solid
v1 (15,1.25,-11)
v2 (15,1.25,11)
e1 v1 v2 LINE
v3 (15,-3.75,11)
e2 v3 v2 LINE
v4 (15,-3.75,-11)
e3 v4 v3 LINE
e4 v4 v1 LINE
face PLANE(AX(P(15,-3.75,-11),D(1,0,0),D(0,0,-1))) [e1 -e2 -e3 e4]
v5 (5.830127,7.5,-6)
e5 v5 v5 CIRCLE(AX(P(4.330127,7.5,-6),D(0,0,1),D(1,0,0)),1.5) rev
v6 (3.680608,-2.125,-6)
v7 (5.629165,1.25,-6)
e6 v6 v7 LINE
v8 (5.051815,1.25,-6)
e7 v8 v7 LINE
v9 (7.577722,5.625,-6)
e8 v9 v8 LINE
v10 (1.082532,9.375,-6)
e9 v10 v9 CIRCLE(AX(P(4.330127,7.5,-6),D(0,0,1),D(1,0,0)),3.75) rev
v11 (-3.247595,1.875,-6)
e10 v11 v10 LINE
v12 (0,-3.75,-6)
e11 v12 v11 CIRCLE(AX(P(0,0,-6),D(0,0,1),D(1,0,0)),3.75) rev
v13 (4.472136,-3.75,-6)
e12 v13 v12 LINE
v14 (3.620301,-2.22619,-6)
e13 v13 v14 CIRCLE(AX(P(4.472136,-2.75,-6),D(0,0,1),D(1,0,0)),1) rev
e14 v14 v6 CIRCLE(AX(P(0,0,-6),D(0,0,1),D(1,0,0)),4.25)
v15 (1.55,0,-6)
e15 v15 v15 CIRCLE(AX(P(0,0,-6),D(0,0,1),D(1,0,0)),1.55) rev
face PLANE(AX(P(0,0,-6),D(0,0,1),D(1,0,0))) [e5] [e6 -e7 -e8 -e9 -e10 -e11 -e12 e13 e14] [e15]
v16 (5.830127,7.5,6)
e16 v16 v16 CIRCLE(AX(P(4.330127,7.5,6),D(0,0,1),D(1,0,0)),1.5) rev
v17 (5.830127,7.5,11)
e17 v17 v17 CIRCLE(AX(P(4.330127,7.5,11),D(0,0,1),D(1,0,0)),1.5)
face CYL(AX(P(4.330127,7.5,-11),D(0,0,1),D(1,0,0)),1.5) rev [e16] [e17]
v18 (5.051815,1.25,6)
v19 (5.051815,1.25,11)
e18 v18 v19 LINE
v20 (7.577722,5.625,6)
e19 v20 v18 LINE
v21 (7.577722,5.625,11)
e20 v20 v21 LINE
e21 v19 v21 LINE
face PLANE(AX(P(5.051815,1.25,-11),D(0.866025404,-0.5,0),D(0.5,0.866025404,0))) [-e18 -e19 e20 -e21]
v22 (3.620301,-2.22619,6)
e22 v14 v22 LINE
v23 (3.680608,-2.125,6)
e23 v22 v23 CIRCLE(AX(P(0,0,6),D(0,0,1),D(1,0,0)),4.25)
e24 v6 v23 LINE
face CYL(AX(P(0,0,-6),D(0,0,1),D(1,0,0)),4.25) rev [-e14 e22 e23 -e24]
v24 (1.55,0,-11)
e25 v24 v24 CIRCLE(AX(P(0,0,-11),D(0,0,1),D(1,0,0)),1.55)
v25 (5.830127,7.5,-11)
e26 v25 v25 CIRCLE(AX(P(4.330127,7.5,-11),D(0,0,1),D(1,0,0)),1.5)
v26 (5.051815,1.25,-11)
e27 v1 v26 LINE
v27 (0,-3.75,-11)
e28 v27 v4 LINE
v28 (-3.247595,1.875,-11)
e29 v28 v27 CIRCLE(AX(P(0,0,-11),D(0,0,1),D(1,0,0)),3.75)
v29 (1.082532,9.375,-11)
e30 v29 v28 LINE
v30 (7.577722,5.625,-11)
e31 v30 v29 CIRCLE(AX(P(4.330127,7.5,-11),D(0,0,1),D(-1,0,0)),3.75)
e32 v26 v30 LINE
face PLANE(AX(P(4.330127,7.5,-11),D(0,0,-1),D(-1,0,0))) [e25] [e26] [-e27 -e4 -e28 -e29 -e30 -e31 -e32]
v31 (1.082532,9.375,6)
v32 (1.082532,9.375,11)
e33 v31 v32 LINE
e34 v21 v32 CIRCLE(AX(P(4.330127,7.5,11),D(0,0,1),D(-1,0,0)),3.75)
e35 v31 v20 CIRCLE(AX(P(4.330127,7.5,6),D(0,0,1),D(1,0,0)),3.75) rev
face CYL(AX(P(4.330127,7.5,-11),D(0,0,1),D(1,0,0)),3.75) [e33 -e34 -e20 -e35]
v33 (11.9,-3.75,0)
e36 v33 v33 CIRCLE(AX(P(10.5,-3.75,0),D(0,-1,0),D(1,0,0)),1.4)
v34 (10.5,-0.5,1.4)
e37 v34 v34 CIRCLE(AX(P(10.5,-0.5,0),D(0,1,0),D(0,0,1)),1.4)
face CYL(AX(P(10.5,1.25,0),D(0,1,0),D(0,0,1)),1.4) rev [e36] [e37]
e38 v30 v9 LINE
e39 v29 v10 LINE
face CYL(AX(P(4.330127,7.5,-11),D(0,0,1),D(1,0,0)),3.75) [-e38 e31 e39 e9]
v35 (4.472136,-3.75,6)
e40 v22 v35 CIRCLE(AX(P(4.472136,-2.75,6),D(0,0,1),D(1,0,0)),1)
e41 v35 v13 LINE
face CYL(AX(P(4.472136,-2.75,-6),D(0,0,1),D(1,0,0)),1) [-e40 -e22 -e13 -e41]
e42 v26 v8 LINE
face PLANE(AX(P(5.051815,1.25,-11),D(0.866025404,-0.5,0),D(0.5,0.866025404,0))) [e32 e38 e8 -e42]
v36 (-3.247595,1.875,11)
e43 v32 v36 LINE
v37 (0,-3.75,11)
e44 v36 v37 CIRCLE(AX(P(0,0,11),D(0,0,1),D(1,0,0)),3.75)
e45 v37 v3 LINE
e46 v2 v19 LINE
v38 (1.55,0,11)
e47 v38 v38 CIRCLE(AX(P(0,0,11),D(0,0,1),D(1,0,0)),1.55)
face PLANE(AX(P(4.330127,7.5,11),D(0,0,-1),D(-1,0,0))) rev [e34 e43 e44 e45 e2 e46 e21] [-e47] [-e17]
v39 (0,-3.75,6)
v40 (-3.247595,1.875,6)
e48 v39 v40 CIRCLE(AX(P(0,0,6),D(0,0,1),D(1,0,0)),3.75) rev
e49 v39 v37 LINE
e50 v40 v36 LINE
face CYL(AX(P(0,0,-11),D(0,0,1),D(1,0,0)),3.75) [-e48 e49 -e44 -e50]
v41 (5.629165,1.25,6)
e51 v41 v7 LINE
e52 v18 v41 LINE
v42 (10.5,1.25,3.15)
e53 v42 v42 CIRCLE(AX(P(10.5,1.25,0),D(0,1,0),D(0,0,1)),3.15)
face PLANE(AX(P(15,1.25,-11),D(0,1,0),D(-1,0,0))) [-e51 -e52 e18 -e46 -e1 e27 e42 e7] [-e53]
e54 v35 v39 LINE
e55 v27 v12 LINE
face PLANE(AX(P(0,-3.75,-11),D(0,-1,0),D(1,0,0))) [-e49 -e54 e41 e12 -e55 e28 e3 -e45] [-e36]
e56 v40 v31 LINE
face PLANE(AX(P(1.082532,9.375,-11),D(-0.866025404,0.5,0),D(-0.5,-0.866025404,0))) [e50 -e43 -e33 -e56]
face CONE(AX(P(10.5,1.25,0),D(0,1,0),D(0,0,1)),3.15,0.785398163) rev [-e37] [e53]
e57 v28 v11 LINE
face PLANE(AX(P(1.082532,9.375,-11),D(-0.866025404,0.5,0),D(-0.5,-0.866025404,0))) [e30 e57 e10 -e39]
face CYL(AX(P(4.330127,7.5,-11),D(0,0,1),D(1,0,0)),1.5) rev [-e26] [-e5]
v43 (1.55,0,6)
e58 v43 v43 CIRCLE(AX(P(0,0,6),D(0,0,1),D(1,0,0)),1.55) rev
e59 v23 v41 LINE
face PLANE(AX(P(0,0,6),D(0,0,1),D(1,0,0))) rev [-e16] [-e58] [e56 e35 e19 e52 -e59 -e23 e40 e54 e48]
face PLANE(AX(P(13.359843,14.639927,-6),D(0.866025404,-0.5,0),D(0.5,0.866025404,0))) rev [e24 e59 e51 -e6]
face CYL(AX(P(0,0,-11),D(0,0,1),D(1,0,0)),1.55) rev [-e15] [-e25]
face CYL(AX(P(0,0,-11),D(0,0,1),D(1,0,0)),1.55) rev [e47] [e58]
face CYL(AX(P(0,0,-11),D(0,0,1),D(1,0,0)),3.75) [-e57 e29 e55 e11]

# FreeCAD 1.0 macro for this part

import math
import FreeCAD as App
import Part
import Sketcher
from FreeCAD import Vector
Q = App.Units.Quantity


def edges_at(feature, points):
    """Names of the edges that pass closest to the given points."""
    edges = feature.Shape.Edges
    near = lambda p: min(range(len(edges)), key=lambda i: edges[i].distToShape(Part.Vertex(*p))[0])
    return sorted({f"Edge{near(p) + 1}" for p in points})

doc = App.newDocument("Part")
body = doc.addObject("PartDesign::Body", "Body")

sketch1 = body.newObject("Sketcher::SketchObject", "Sketch")
sketch1.AttachmentSupport = (doc.getObject("XY_Plane"), [""])
sketch1.MapMode = "FlatFace"
sketch1.addGeometry(Part.LineSegment(Vector(1.1, 9.4, 0), Vector(-3.2, 1.9, 0)), False)
sketch1.addGeometry(Part.ArcOfCircle(Part.Circle(Vector(0, 0, 0), Vector(0, 0, 1), 3.8), math.radians(150), math.radians(270)), False)
sketch1.addGeometry(Part.LineSegment(Vector(0, -3.8, 0), Vector(15, -3.8, 0)), False)
sketch1.addGeometry(Part.LineSegment(Vector(15, -3.8, 0), Vector(15, 1.2, 0)), False)
sketch1.addGeometry(Part.LineSegment(Vector(15, 1.2, 0), Vector(5.1, 1.2, 0)), False)
sketch1.addGeometry(Part.LineSegment(Vector(5.1, 1.2, 0), Vector(7.6, 5.6, 0)), False)
sketch1.addGeometry(Part.ArcOfCircle(Part.Circle(Vector(4.3, 7.5, 0), Vector(0, 0, 1), 3.8), math.radians(-30), math.radians(150)), False)
sketch1.addGeometry(Part.Circle(Vector(0, 0, 0), Vector(0, 0, 1), 1.6), False)
sketch1.addGeometry(Part.Circle(Vector(4.3, 7.5, 0), Vector(0, 0, 1), 1.5), False)
sketch1.addConstraint(Sketcher.Constraint("Tangent", 0, 2, 1, 1))
sketch1.addConstraint(Sketcher.Constraint("Tangent", 1, 2, 2, 1))
sketch1.addConstraint(Sketcher.Constraint("Coincident", 2, 2, 3, 1))
sketch1.addConstraint(Sketcher.Constraint("Coincident", 3, 2, 4, 1))
sketch1.addConstraint(Sketcher.Constraint("Coincident", 4, 2, 5, 1))
sketch1.addConstraint(Sketcher.Constraint("Tangent", 5, 2, 6, 1))
sketch1.addConstraint(Sketcher.Constraint("Tangent", 6, 2, 0, 1))
sketch1.addConstraint(Sketcher.Constraint("Horizontal", 2))
sketch1.addConstraint(Sketcher.Constraint("Vertical", 3))
sketch1.addConstraint(Sketcher.Constraint("Horizontal", 4))
sketch1.addConstraint(Sketcher.Constraint("Coincident", 1, 3, -1, 1))
sketch1.addConstraint(Sketcher.Constraint("Coincident", 7, 3, -1, 1))
sketch1.addConstraint(Sketcher.Constraint("Coincident", 8, 3, 6, 3))
sketch1.addConstraint(Sketcher.Constraint("Equal", 1, 6))
sketch1.addConstraint(Sketcher.Constraint("Parallel", 0, 5))
sketch1.addConstraint(Sketcher.Constraint("Diameter", 8, Q("3 mm")))
sketch1.addConstraint(Sketcher.Constraint("Diameter", 7, Q("3.1 mm")))
sketch1.addConstraint(Sketcher.Constraint("DistanceX", 2, 1, 2, 2, Q("15 mm")))
sketch1.addConstraint(Sketcher.Constraint("DistanceY", 3, 1, 3, 2, Q("5 mm")))
sketch1.addConstraint(Sketcher.Constraint("Angle", 0, Q("-120 deg")))
sketch1.addConstraint(Sketcher.Constraint("Radius", 1, Q("3.75 mm")))
sketch1.addConstraint(Sketcher.Constraint("DistanceY", -1, 1, 6, 3, Q("7.5 mm")))
pad1 = body.newObject("PartDesign::Pad", "Pad")
pad1.Profile = sketch1
pad1.Length = 22
pad1.Midplane = True

sketch2 = body.newObject("Sketcher::SketchObject", "Sketch001")
sketch2.AttachmentSupport = (doc.getObject("XY_Plane"), [""])
sketch2.MapMode = "FlatFace"
sketch2.addGeometry(Part.LineSegment(Vector(6, 18.9, 0), Vector(-3.7, 2.1, 0)), False)
sketch2.addGeometry(Part.ArcOfCircle(Part.Circle(Vector(0, 0, 0), Vector(0, 0, 1), 4.2), math.radians(150), math.radians(330)), False)
sketch2.addGeometry(Part.LineSegment(Vector(3.7, -2.1, 0), Vector(13.4, 14.6, 0)), False)
sketch2.addGeometry(Part.LineSegment(Vector(13.4, 14.6, 0), Vector(6, 18.9, 0)), False)
sketch2.addConstraint(Sketcher.Constraint("Tangent", 0, 2, 1, 1))
sketch2.addConstraint(Sketcher.Constraint("Tangent", 1, 2, 2, 1))
sketch2.addConstraint(Sketcher.Constraint("Coincident", 2, 2, 3, 1))
sketch2.addConstraint(Sketcher.Constraint("Coincident", 3, 2, 0, 1))
sketch2.addConstraint(Sketcher.Constraint("Coincident", 1, 3, -1, 1))
sketch2.addConstraint(Sketcher.Constraint("Parallel", 0, 2))
sketch2.addConstraint(Sketcher.Constraint("Perpendicular", 2, 3))
sketch2.addConstraint(Sketcher.Constraint("Angle", 0, Q("-120 deg")))
sketch2.addConstraint(Sketcher.Constraint("Radius", 1, Q("4.25 mm")))
sketch2.addConstraint(Sketcher.Constraint("Distance", 0, Q("19.35847 mm")))
pocket1 = body.newObject("PartDesign::Pocket", "Pocket")
pocket1.Profile = sketch2
pocket1.Length = 12
pocket1.Midplane = True

sketch3 = body.newObject("Sketcher::SketchObject", "Sketch002")
sketch3.AttachmentSupport = (doc.getObject("XZ_Plane"), [""])
sketch3.MapMode = "FlatFace"
sketch3.AttachmentOffset = App.Placement(Vector(0, 0, -1.25), App.Rotation())
sketch3.addGeometry(Part.Circle(Vector(10.5, 0, 0), Vector(0, 0, 1), 1.4), False)
sketch3.addConstraint(Sketcher.Constraint("PointOnObject", 0, 3, -1))
sketch3.addConstraint(Sketcher.Constraint("Diameter", 0, Q("2.8 mm")))
sketch3.addConstraint(Sketcher.Constraint("DistanceX", -1, 1, 0, 3, Q("10.5 mm")))
doc.recompute()
hole = body.newObject("PartDesign::Hole", "Hole")
hole.Profile = sketch3
hole.ThreadType = "None"
hole.Diameter = 2.8
hole.DepthType = "Dimension"
hole.Depth = 10
hole.DrillPoint = "Angled"
hole.DrillPointAngle = 118
hole.HoleCutType = "Countersink"
hole.HoleCutDiameter = 6.3
hole.HoleCutCountersinkAngle = 90
hole.Reversed = True
doc.recompute()

fillet = body.newObject("PartDesign::Fillet", "Fillet")
fillet.Base = (hole, edges_at(hole, [(2, -3.75, 0)]))
fillet.Radius = 1

doc.recompute()
